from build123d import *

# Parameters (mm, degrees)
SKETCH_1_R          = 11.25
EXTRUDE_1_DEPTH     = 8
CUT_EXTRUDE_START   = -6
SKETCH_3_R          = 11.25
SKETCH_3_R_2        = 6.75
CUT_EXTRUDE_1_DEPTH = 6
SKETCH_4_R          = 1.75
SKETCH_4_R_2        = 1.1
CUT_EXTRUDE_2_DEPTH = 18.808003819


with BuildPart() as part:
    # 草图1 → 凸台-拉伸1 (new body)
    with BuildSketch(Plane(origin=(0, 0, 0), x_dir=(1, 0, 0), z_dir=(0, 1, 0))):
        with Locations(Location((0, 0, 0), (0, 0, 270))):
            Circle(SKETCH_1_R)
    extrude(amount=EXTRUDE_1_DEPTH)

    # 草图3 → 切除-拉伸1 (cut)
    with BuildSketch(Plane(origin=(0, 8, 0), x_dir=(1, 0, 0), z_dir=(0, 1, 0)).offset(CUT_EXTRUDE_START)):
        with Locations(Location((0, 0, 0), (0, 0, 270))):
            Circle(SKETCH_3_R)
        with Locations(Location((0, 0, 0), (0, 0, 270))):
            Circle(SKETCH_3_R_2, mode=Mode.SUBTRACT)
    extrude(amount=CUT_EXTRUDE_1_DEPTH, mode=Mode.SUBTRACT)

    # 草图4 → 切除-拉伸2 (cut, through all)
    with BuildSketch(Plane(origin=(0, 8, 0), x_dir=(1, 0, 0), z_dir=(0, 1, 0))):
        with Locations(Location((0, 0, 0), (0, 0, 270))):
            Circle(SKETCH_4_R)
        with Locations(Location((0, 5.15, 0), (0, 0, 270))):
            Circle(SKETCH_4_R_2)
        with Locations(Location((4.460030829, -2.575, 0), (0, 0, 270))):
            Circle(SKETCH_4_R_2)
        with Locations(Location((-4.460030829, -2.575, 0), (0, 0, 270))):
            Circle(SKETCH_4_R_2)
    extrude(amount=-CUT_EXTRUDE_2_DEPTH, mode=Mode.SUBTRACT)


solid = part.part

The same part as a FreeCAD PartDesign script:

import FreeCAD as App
import Part
import Sketcher
from FreeCAD import Vector
Q = App.Units.Quantity

doc = App.newDocument("Part")
body = doc.addObject("PartDesign::Body", "Body")

sketch1 = body.newObject("Sketcher::SketchObject", "Sketch")
sketch1.AttachmentSupport = (doc.getObject("XZ_Plane"), [""])
sketch1.MapMode = "FlatFace"
sketch1.addGeometry(Part.Circle(Vector(0, 0, 0), Vector(0, 0, 1), 11.25), False)
sketch1.addConstraint(Sketcher.Constraint("Coincident", 0, 3, -1, 1))
sketch1.addConstraint(Sketcher.Constraint("Diameter", 0, Q("22.5 mm")))
pad1 = body.newObject("PartDesign::Pad", "Pad")
pad1.Profile = sketch1
pad1.Length = 8
pad1.Reversed = True

sketch2 = body.newObject("Sketcher::SketchObject", "Sketch001")
sketch2.AttachmentSupport = (doc.getObject("XZ_Plane"), [""])
sketch2.MapMode = "FlatFace"
sketch2.AttachmentOffset = App.Placement(Vector(0, 0, -2), App.Rotation())
sketch2.addGeometry(Part.Circle(Vector(0, 0, 0), Vector(0, 0, 1), 11.25), False)
sketch2.addGeometry(Part.Circle(Vector(0, 0, 0), Vector(0, 0, 1), 6.75), False)
sketch2.addConstraint(Sketcher.Constraint("Coincident", 0, 3, -1, 1))
sketch2.addConstraint(Sketcher.Constraint("Coincident", 1, 3, -1, 1))
sketch2.addConstraint(Sketcher.Constraint("Diameter", 0, Q("22.5 mm")))
sketch2.addConstraint(Sketcher.Constraint("Diameter", 1, Q("13.5 mm")))
pocket1 = body.newObject("PartDesign::Pocket", "Pocket")
pocket1.Profile = sketch2
pocket1.Length = 6

sketch3 = body.newObject("Sketcher::SketchObject", "Sketch002")
sketch3.AttachmentSupport = (doc.getObject("XZ_Plane"), [""])
sketch3.MapMode = "FlatFace"
sketch3.AttachmentOffset = App.Placement(Vector(0, 0, -8), App.Rotation())
sketch3.addGeometry(Part.Circle(Vector(0, 0, 0), Vector(0, 0, 1), 1.75), False)
sketch3.addGeometry(Part.Circle(Vector(0, -5.15, 0), Vector(0, 0, 1), 1.1), False)
sketch3.addGeometry(Part.Circle(Vector(4.460031, 2.575, 0), Vector(0, 0, 1), 1.1), False)
sketch3.addGeometry(Part.Circle(Vector(-4.460031, 2.575, 0), Vector(0, 0, 1), 1.1), False)
sketch3.addConstraint(Sketcher.Constraint("Coincident", 0, 3, -1, 1))
sketch3.addConstraint(Sketcher.Constraint("Equal", 1, 2))
sketch3.addConstraint(Sketcher.Constraint("Equal", 2, 3))
sketch3.addConstraint(Sketcher.Constraint("Symmetric", 2, 3, 3, 3, -2))
sketch3.addConstraint(Sketcher.Constraint("PointOnObject", 1, 3, -2))
sketch3.addConstraint(Sketcher.Constraint("Diameter", 0, Q("3.5 mm")))
sketch3.addConstraint(Sketcher.Constraint("Diameter", 1, Q("2.2 mm")))
sketch3.addConstraint(Sketcher.Constraint("DistanceY", 1, 3, -1, 1, Q("5.15 mm")))
sketch3.addConstraint(Sketcher.Constraint("DistanceY", -1, 1, 2, 3, Q("2.575 mm")))
sketch3.addConstraint(Sketcher.Constraint("DistanceX", -1, 1, 2, 3, Q("4.460031 mm")))
pocket2 = body.newObject("PartDesign::Pocket", "Pocket001")
pocket2.Profile = sketch3
pocket2.Type = "ThroughAll"
pocket2.Reversed = True

doc.recompute()
